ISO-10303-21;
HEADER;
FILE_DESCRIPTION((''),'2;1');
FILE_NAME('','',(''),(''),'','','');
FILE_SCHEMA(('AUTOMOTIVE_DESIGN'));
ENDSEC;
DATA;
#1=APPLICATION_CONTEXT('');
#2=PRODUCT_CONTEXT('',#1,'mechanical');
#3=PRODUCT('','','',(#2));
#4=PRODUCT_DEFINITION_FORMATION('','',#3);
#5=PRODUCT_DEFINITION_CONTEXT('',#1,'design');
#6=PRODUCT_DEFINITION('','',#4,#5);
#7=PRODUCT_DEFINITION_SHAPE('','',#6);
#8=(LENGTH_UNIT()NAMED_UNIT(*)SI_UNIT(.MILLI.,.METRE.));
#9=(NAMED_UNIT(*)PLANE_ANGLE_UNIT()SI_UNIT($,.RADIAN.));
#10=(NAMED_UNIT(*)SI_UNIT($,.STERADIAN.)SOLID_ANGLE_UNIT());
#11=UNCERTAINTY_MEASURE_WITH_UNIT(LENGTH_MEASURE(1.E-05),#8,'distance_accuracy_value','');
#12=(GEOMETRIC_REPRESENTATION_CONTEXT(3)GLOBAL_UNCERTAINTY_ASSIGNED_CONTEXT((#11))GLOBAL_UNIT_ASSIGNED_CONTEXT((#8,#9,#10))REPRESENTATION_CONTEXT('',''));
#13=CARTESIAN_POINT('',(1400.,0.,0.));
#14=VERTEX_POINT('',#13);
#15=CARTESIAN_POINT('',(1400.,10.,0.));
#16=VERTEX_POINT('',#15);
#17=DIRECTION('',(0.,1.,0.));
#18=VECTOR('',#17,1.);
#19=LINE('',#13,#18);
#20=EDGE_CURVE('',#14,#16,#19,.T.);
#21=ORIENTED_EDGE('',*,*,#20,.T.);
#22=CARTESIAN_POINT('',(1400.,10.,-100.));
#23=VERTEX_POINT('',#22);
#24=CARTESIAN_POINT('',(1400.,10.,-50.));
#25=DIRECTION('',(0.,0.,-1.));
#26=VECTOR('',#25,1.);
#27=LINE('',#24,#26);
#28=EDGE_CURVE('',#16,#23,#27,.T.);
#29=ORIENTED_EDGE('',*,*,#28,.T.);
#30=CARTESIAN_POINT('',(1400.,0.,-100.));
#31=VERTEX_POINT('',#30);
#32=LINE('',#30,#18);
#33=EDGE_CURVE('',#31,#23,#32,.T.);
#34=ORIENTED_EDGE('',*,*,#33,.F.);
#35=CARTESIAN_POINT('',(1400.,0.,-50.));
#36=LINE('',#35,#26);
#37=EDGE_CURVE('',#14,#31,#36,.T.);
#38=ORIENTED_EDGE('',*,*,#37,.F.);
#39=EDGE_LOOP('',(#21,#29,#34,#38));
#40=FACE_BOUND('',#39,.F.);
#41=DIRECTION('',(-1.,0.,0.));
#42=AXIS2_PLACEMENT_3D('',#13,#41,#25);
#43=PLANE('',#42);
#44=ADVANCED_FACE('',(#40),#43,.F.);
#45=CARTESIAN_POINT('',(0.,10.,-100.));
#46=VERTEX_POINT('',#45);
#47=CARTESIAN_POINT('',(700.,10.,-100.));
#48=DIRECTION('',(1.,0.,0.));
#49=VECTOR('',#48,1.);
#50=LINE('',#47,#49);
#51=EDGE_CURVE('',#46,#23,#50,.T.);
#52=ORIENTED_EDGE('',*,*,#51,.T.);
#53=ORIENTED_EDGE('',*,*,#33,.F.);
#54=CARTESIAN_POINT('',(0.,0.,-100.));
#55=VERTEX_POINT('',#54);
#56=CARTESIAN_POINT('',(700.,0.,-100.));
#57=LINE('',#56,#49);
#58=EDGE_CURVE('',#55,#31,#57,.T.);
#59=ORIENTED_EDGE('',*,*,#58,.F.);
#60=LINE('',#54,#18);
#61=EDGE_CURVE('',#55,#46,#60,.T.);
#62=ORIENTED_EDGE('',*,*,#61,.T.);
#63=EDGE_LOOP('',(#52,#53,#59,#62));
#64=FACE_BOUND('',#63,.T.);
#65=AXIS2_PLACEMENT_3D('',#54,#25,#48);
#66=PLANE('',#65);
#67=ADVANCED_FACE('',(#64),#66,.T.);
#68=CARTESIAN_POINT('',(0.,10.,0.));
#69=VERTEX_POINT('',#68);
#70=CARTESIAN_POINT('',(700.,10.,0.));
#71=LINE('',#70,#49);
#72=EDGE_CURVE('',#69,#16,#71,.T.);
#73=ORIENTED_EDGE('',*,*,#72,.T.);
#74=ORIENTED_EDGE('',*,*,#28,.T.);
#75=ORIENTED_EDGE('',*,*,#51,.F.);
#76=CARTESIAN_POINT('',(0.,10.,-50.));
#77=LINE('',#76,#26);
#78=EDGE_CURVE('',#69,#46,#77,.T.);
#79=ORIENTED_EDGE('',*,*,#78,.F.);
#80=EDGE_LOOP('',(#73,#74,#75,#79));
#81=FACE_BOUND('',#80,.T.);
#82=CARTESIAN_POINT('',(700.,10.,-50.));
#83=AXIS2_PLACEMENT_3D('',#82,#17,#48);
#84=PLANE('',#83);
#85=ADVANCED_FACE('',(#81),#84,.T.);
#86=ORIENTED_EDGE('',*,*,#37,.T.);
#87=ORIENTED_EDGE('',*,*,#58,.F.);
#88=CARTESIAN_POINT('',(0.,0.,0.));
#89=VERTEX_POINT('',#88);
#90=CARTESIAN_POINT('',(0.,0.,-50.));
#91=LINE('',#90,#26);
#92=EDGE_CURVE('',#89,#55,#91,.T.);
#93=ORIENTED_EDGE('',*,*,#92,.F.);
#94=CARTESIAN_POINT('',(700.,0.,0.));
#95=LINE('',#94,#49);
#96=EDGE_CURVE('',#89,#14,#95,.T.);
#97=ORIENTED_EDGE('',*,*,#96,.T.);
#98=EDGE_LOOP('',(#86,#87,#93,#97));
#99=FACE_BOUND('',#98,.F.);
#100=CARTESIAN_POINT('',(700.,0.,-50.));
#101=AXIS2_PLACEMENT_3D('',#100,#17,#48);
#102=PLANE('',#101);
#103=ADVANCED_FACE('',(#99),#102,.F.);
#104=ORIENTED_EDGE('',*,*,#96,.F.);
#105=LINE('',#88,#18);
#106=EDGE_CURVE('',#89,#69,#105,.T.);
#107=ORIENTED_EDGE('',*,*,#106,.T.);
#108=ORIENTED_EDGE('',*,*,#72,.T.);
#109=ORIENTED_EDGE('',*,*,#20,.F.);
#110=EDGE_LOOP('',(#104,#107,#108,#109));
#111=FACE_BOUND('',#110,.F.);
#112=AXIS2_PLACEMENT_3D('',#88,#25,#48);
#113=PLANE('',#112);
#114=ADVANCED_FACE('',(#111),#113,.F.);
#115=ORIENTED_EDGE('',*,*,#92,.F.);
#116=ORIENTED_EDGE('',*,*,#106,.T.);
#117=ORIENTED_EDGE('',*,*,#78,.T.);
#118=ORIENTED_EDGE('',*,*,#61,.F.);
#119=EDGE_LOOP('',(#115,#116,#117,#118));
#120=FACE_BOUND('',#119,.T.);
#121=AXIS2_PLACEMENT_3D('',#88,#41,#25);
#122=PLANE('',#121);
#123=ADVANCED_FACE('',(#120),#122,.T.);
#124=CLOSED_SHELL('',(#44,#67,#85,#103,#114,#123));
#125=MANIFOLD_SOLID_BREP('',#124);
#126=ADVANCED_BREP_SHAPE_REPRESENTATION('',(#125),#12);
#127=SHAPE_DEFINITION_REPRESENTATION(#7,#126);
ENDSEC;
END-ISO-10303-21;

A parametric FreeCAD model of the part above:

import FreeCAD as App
import Part
import Sketcher

V = App.Vector


def add_polygon(sketch, points):
    """Adds a closed chain of lines whose ends are joined by coincident constraints."""
    first, n = sketch.GeometryCount, len(points)
    for a, b in zip(points, points[1:] + points[:1]):
        sketch.addGeometry(Part.LineSegment(App.Vector(*a, 0), App.Vector(*b, 0)), False)
    for i in range(n):
        sketch.addConstraint(Sketcher.Constraint("Coincident", first + i, 2, first + (i + 1) % n, 1))

doc = App.newDocument("Part")
body = doc.addObject("PartDesign::Body", "Body")

sketch1 = body.newObject("Sketcher::SketchObject", "Sketch")
sketch1.AttachmentSupport = (doc.getObject("XZ_Plane"), [""])
sketch1.MapMode = "FlatFace"
add_polygon(sketch1, [(0, -100), (0, 0), (1400, 0), (1400, -100)])
sketch1.addConstraint([
    Sketcher.Constraint("Vertical", 0),
    Sketcher.Constraint("Horizontal", 1),
    Sketcher.Constraint("Vertical", 2),
    Sketcher.Constraint("Horizontal", 3),
    Sketcher.Constraint("Coincident", 0, 2, -1, 1),
    Sketcher.Constraint("DistanceX", 1, 1, 1, 2, 1400.0),
    Sketcher.Constraint("DistanceY", 0, 1, 0, 2, 100.0),
])
pad1 = body.newObject("PartDesign::Pad", "Pad")
pad1.Profile = sketch1
pad1.Length = 10
pad1.Reversed = True

doc.recompute()
